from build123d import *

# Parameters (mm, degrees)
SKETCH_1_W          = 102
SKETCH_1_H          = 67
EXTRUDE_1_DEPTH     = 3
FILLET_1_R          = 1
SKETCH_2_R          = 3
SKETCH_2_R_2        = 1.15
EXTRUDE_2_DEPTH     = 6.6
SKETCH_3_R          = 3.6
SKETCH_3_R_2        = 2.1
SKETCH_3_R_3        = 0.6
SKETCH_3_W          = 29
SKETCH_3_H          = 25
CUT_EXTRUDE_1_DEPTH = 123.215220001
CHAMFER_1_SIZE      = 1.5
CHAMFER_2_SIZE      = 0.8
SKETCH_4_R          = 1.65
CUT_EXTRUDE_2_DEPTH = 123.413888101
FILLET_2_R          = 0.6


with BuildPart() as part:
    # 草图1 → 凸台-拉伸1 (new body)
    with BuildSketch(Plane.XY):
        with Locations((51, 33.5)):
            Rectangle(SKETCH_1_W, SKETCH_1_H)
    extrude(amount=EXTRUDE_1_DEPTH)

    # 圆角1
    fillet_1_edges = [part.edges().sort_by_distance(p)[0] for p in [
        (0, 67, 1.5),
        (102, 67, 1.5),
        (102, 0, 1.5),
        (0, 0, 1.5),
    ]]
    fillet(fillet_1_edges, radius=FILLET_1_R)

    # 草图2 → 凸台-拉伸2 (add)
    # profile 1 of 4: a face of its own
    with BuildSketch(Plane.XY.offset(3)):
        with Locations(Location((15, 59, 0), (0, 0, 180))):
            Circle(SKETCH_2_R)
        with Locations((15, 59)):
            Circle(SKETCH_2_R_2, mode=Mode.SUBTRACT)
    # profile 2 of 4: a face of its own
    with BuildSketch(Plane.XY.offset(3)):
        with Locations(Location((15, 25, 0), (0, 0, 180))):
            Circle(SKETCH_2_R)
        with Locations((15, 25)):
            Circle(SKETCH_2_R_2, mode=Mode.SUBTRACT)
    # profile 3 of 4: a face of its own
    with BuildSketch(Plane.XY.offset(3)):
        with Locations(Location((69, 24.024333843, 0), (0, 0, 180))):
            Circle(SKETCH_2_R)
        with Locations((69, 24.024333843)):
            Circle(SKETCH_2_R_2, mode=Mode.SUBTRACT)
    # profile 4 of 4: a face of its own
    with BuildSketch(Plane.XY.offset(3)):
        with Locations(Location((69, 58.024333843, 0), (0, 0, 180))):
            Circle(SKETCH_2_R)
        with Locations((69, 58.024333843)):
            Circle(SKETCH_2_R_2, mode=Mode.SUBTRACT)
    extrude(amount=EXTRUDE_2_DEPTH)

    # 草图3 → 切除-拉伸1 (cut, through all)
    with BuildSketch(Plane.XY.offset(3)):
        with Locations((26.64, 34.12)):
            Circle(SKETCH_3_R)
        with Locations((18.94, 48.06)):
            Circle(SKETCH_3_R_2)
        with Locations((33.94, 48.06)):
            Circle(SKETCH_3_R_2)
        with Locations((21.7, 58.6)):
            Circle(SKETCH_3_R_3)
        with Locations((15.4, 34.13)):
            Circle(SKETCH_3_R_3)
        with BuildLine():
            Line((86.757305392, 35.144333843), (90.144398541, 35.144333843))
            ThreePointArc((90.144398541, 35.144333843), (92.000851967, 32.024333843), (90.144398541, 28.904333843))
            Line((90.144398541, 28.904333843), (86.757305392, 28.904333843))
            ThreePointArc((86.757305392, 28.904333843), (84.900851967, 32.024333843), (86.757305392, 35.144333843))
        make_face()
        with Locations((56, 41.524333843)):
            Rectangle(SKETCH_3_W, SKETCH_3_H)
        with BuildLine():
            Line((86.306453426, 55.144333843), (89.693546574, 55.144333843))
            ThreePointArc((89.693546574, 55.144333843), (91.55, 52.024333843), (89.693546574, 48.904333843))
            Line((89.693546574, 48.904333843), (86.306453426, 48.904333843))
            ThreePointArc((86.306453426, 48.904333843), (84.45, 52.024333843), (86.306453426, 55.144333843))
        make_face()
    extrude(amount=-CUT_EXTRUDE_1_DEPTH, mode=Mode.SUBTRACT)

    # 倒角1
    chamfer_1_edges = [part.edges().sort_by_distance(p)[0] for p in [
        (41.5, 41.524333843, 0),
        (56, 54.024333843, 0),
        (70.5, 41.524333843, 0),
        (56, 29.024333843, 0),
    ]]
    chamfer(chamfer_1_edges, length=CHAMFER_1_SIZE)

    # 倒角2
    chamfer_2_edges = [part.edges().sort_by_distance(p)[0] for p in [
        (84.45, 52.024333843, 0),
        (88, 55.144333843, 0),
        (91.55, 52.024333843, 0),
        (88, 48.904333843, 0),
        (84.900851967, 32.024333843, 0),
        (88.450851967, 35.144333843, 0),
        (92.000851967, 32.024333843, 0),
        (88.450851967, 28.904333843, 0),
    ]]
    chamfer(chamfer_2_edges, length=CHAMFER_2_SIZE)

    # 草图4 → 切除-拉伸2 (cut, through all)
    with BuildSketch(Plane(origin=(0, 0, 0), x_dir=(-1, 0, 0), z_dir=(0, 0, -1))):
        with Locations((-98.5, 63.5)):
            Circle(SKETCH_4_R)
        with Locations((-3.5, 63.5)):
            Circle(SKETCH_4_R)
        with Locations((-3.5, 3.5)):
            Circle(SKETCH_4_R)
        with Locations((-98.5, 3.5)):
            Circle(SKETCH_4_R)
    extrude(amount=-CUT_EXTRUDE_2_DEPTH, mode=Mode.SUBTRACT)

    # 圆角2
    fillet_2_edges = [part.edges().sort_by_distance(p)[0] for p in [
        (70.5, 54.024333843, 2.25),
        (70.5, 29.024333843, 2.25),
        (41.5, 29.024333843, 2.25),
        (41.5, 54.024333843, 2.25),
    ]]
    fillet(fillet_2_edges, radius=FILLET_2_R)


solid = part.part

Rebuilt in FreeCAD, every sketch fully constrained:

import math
import FreeCAD as App
import Part
import Sketcher


def edges_at(feature, points):
    """Names of the edges that pass closest to the given points."""
    edges = feature.Shape.Edges
    near = lambda p: min(range(len(edges)), key=lambda i: edges[i].distToShape(Part.Vertex(*p))[0])
    return sorted({f"Edge{near(p) + 1}" for p in points})

doc = App.newDocument("Part")
params = doc.addObject("Spreadsheet::Sheet", "Params")
for row, (alias, value) in enumerate([
    ("sketch1_width", "102 mm"),
    ("sketch1_height", "67 mm"),
    ("pad1_length", "3 mm"),
    ("fillet_radius", "1 mm"),
    ("sketch2_diameter", "6 mm"),
    ("sketch2_diameter2", "2.3 mm"),
    ("pad2_length", "6.6 mm"),
    ("sketch3_diameter", "7.2 mm"),
    ("sketch3_diameter2", "4.2 mm"),
    ("sketch3_diameter3", "1.2 mm"),
    ("sketch3_width", "29 mm"),
    ("sketch3_height", "25 mm"),
    ("chamfer_size", "1.5 mm"),
    ("chamfer2_size", "0.8 mm"),
    ("sketch4_diameter", "3.3 mm"),
    ("fillet2_radius", "0.6 mm"),
], start=1):
    params.set(f"A{row}", alias)
    params.set(f"B{row}", "=" + value)
    params.setAlias(f"B{row}", alias)

body = doc.addObject("PartDesign::Body", "Body")

# Sketch on XY plane
sketch1 = body.newObject("Sketcher::SketchObject", "Sketch")
sketch1.AttachmentSupport = (doc.getObject("XY_Plane"), [""])
sketch1.MapMode = "FlatFace"
sketch1.addGeometry([
    Part.LineSegment(App.Vector(0, 67, 0), App.Vector(0, 0, 0)),
    Part.LineSegment(App.Vector(0, 0, 0), App.Vector(102, 0, 0)),
    Part.LineSegment(App.Vector(102, 0, 0), App.Vector(102, 67, 0)),
    Part.LineSegment(App.Vector(102, 67, 0), App.Vector(0, 67, 0)),
], False)
sketch1.addConstraint([
    Sketcher.Constraint("Coincident", 0, 2, 1, 1),
    Sketcher.Constraint("Coincident", 1, 2, 2, 1),
    Sketcher.Constraint("Coincident", 2, 2, 3, 1),
    Sketcher.Constraint("Coincident", 3, 2, 0, 1),
    Sketcher.Constraint("Vertical", 0),
    Sketcher.Constraint("Horizontal", 1),
    Sketcher.Constraint("Vertical", 2),
    Sketcher.Constraint("Horizontal", 3),
    Sketcher.Constraint("Coincident", 0, 2, -1, 1),
    Sketcher.Constraint("DistanceX", 1, 1, 1, 2, 102.0),
    Sketcher.Constraint("DistanceY", 0, 2, 0, 1, 67.0),
])
sketch1.setExpression("Constraints[9]", "Params.sketch1_width")
sketch1.setExpression("Constraints[10]", "Params.sketch1_height")
pad1 = body.newObject("PartDesign::Pad", "Pad")
pad1.Profile = sketch1
pad1.setExpression("Length", "Params.pad1_length")
doc.recompute()

fillet = body.newObject("PartDesign::Fillet", "Fillet")
fillet.Base = (pad1, edges_at(pad1, [
    (0, 67, 1.5),
    (102, 67, 1.5),
    (102, 0, 1.5),
    (0, 0, 1.5),
]))
fillet.setExpression("Radius", "Params.fillet_radius")

# Sketch on XY plane
sketch2 = body.newObject("Sketcher::SketchObject", "Sketch001")
sketch2.AttachmentSupport = (doc.getObject("XY_Plane"), [""])
sketch2.MapMode = "FlatFace"
sketch2.AttachmentOffset = App.Placement(App.Vector(0, 0, 3), App.Rotation())
sketch2.addGeometry([
    Part.Circle(App.Vector(15, 59, 0), App.Vector(0, 0, 1), 3),  # 0
    Part.Circle(App.Vector(15, 59, 0), App.Vector(0, 0, 1), 1.1),  # 1
    Part.Circle(App.Vector(15, 25, 0), App.Vector(0, 0, 1), 3),  # 2
    Part.Circle(App.Vector(15, 25, 0), App.Vector(0, 0, 1), 1.1),  # 3
    Part.Circle(App.Vector(69, 24, 0), App.Vector(0, 0, 1), 3),  # 4
    Part.Circle(App.Vector(69, 24, 0), App.Vector(0, 0, 1), 1.1),  # 5
    Part.Circle(App.Vector(69, 58, 0), App.Vector(0, 0, 1), 3),  # 6
    Part.Circle(App.Vector(69, 58, 0), App.Vector(0, 0, 1), 1.1),  # 7
], False)
sketch2.addConstraint([
    Sketcher.Constraint("Coincident", 1, 3, 0, 3),
    Sketcher.Constraint("Coincident", 3, 3, 2, 3),
    Sketcher.Constraint("Coincident", 5, 3, 4, 3),
    Sketcher.Constraint("Coincident", 7, 3, 6, 3),
    Sketcher.Constraint("Equal", 0, 2),
    Sketcher.Constraint("Equal", 1, 3),
    Sketcher.Constraint("Equal", 2, 4),
    Sketcher.Constraint("Equal", 3, 5),
    Sketcher.Constraint("Equal", 4, 6),
    Sketcher.Constraint("Equal", 5, 7),
    Sketcher.Constraint("Vertical", 1, 3, 2, 3),
    Sketcher.Constraint("Vertical", 5, 3, 6, 3),
    Sketcher.Constraint("Diameter", 0, 6.0),
    Sketcher.Constraint("Diameter", 1, 2.3),
    Sketcher.Constraint("DistanceX", -1, 1, 0, 3, 15.0),
    Sketcher.Constraint("DistanceY", -1, 1, 0, 3, 59.0),
    Sketcher.Constraint("DistanceY", -1, 1, 2, 3, 25.0),
    Sketcher.Constraint("DistanceX", -1, 1, 4, 3, 69.0),
    Sketcher.Constraint("DistanceY", 4, 3, 6, 3, 34.0),
    Sketcher.Constraint("DistanceY", -1, 1, 4, 3, 24.024334),
])
sketch2.setExpression("Constraints[12]", "Params.sketch2_diameter")
sketch2.setExpression("Constraints[13]", "Params.sketch2_diameter2")
pad2 = body.newObject("PartDesign::Pad", "Pad001")
pad2.Profile = sketch2
pad2.setExpression("Length", "Params.pad2_length")

# Sketch on XY plane
sketch3 = body.newObject("Sketcher::SketchObject", "Sketch002")
sketch3.AttachmentSupport = (doc.getObject("XY_Plane"), [""])
sketch3.MapMode = "FlatFace"
sketch3.AttachmentOffset = App.Placement(App.Vector(0, 0, 3), App.Rotation())
sketch3.addGeometry([
    Part.Circle(App.Vector(26.6, 34.1, 0), App.Vector(0, 0, 1), 3.6),  # 0
    Part.Circle(App.Vector(18.9, 48.1, 0), App.Vector(0, 0, 1), 2.1),  # 1
    Part.Circle(App.Vector(33.9, 48.1, 0), App.Vector(0, 0, 1), 2.1),  # 2
    Part.Circle(App.Vector(21.7, 58.6, 0), App.Vector(0, 0, 1), 0.6),  # 3
    Part.Circle(App.Vector(15.4, 34.1, 0), App.Vector(0, 0, 1), 0.6),  # 4
    Part.LineSegment(App.Vector(90.1, 35.1, 0), App.Vector(86.8, 35.1, 0)),  # 5
    Part.ArcOfCircle(Part.Circle(App.Vector(88.5, 32, 0), App.Vector(0, 0, 1), 3.5), math.radians(118), math.radians(242)),  # 6
    Part.LineSegment(App.Vector(86.8, 28.9, 0), App.Vector(90.1, 28.9, 0)),  # 7
    Part.ArcOfCircle(Part.Circle(App.Vector(88.5, 32, 0), App.Vector(0, 0, 1), 3.5), math.radians(-62), math.radians(62)),  # 8
    Part.LineSegment(App.Vector(41.5, 54, 0), App.Vector(41.5, 29, 0)),  # 9
    Part.LineSegment(App.Vector(41.5, 29, 0), App.Vector(70.5, 29, 0)),  # 10
    Part.LineSegment(App.Vector(70.5, 29, 0), App.Vector(70.5, 54, 0)),  # 11
    Part.LineSegment(App.Vector(70.5, 54, 0), App.Vector(41.5, 54, 0)),  # 12
    Part.LineSegment(App.Vector(89.7, 55.1, 0), App.Vector(86.3, 55.1, 0)),  # 13
    Part.ArcOfCircle(Part.Circle(App.Vector(88, 52, 0), App.Vector(0, 0, 1), 3.5), math.radians(118), math.radians(242)),  # 14
    Part.LineSegment(App.Vector(86.3, 48.9, 0), App.Vector(89.7, 48.9, 0)),  # 15
    Part.ArcOfCircle(Part.Circle(App.Vector(88, 52, 0), App.Vector(0, 0, 1), 3.5), math.radians(-62), math.radians(62)),  # 16
], False)
sketch3.addConstraint([
    Sketcher.Constraint("Coincident", 5, 2, 6, 1),
    Sketcher.Constraint("Coincident", 6, 2, 7, 1),
    Sketcher.Constraint("Coincident", 7, 2, 8, 1),
    Sketcher.Constraint("Coincident", 8, 2, 5, 1),
    Sketcher.Constraint("Coincident", 9, 2, 10, 1),
    Sketcher.Constraint("Coincident", 10, 2, 11, 1),
    Sketcher.Constraint("Coincident", 11, 2, 12, 1),
    Sketcher.Constraint("Coincident", 12, 2, 9, 1),
    Sketcher.Constraint("Coincident", 13, 2, 14, 1),
    Sketcher.Constraint("Coincident", 14, 2, 15, 1),
    Sketcher.Constraint("Coincident", 15, 2, 16, 1),
    Sketcher.Constraint("Coincident", 16, 2, 13, 1),
    Sketcher.Constraint("Horizontal", 5),
    Sketcher.Constraint("Horizontal", 7),
    Sketcher.Constraint("Vertical", 9),
    Sketcher.Constraint("Horizontal", 10),
    Sketcher.Constraint("Vertical", 11),
    Sketcher.Constraint("Horizontal", 12),
    Sketcher.Constraint("Horizontal", 13),
    Sketcher.Constraint("Horizontal", 15),
    Sketcher.Constraint("Coincident", 8, 3, 6, 3),
    Sketcher.Constraint("Coincident", 16, 3, 14, 3),
    Sketcher.Constraint("Equal", 1, 2),
    Sketcher.Constraint("Equal", 3, 4),
    Sketcher.Constraint("Equal", 6, 8),
    Sketcher.Constraint("Equal", 8, 14),
    Sketcher.Constraint("Equal", 14, 16),
    Sketcher.Constraint("Horizontal", 1, 3, 2, 3),
    Sketcher.Constraint("Vertical", 5, 2, 6, 2),
    Sketcher.Constraint("Vertical", 13, 2, 14, 2),
    Sketcher.Constraint("Equal", 7, 13),
    Sketcher.Constraint("Diameter", 0, 7.2),
    Sketcher.Constraint("Diameter", 1, 4.2),
    Sketcher.Constraint("Diameter", 3, 1.2),
    Sketcher.Constraint("DistanceX", 10, 1, 10, 2, 29.0),
    Sketcher.Constraint("DistanceY", 9, 2, 9, 1, 25.0),
    Sketcher.Constraint("Radius", 6, 3.55),
    Sketcher.Constraint("DistanceX", -1, 1, 14, 3, 88.0),
    Sketcher.Constraint("DistanceX", 1, 3, 2, 3, 15.0),
    Sketcher.Constraint("DistanceY", 6, 3, 14, 3, 20.0),
    Sketcher.Constraint("DistanceY", 10, 2, 6, 3, 3.0),
    Sketcher.Constraint("DistanceX", -1, 1, 3, 3, 21.7),
    Sketcher.Constraint("DistanceY", -1, 1, 3, 3, 58.6),
    Sketcher.Constraint("DistanceX", -1, 1, 4, 3, 15.4),
    Sketcher.Constraint("DistanceX", -1, 1, 9, 2, 41.5),
    Sketcher.Constraint("DistanceX", 1, 3, 0, 3, 7.7),
    Sketcher.Constraint("DistanceX", -1, 1, 0, 3, 26.64),
    Sketcher.Constraint("DistanceY", -1, 1, 0, 3, 34.12),
    Sketcher.Constraint("DistanceY", -1, 1, 1, 3, 48.06),
    Sketcher.Constraint("DistanceY", -1, 1, 4, 3, 34.13),
    Sketcher.Constraint("DistanceY", 6, 3, 5, 2, 3.12),
    Sketcher.Constraint("DistanceX", -1, 1, 7, 2, 90.144399),
    Sketcher.Constraint("DistanceY", -1, 1, 6, 3, 32.024334),
])
sketch3.setExpression("Constraints[31]", "Params.sketch3_diameter")
sketch3.setExpression("Constraints[32]", "Params.sketch3_diameter2")
sketch3.setExpression("Constraints[33]", "Params.sketch3_diameter3")
sketch3.setExpression("Constraints[34]", "Params.sketch3_width")
sketch3.setExpression("Constraints[35]", "Params.sketch3_height")
pocket1 = body.newObject("PartDesign::Pocket", "Pocket")
pocket1.Profile = sketch3
pocket1.Type = "ThroughAll"
doc.recompute()

chamfer = body.newObject("PartDesign::Chamfer", "Chamfer")
chamfer.Base = (pocket1, edges_at(pocket1, [
    (41.5, 41.524, 0),
    (56, 54.024, 0),
    (70.5, 41.524, 0),
    (56, 29.024, 0),
]))
chamfer.setExpression("Size", "Params.chamfer_size")
doc.recompute()

chamfer2 = body.newObject("PartDesign::Chamfer", "Chamfer001")
chamfer2.Base = (chamfer, edges_at(chamfer, [
    (84.45, 52.024, 0),
    (88, 55.144, 0),
    (91.55, 52.024, 0),
    (88, 48.904, 0),
    (84.901, 32.024, 0),
    (88.451, 35.144, 0),
    (92.001, 32.024, 0),
    (88.451, 28.904, 0),
]))
chamfer2.setExpression("Size", "Params.chamfer2_size")

# Sketch on XY plane
sketch4 = body.newObject("Sketcher::SketchObject", "Sketch003")
sketch4.AttachmentSupport = (doc.getObject("XY_Plane"), [""])
sketch4.MapMode = "FlatFace"
sketch4.addGeometry([
    Part.Circle(App.Vector(98.5, 63.5, 0), App.Vector(0, 0, 1), 1.6),
    Part.Circle(App.Vector(3.5, 63.5, 0), App.Vector(0, 0, 1), 1.6),
    Part.Circle(App.Vector(3.5, 3.5, 0), App.Vector(0, 0, 1), 1.6),
    Part.Circle(App.Vector(98.5, 3.5, 0), App.Vector(0, 0, 1), 1.6),
], False)
sketch4.addConstraint([
    Sketcher.Constraint("Equal", 0, 1),
    Sketcher.Constraint("Equal", 1, 2),
    Sketcher.Constraint("Equal", 2, 3),
    Sketcher.Constraint("Horizontal", 0, 3, 1, 3),
    Sketcher.Constraint("Horizontal", 2, 3, 3, 3),
    Sketcher.Constraint("Vertical", 1, 3, 2, 3),
    Sketcher.Constraint("Vertical", 0, 3, 3, 3),
    Sketcher.Constraint("Diameter", 0, 3.3),
    Sketcher.Constraint("DistanceX", 1, 3, 0, 3, 95.0),
    Sketcher.Constraint("DistanceY", 2, 3, 1, 3, 60.0),
    Sketcher.Constraint("DistanceX", -1, 1, 0, 3, 98.5),
    Sketcher.Constraint("DistanceY", -1, 1, 0, 3, 63.5),
])
sketch4.setExpression("Constraints[7]", "Params.sketch4_diameter")
pocket2 = body.newObject("PartDesign::Pocket", "Pocket001")
pocket2.Profile = sketch4
pocket2.Type = "ThroughAll"
pocket2.Reversed = True
doc.recompute()

fillet2 = body.newObject("PartDesign::Fillet", "Fillet001")
fillet2.Base = (pocket2, edges_at(pocket2, [
    (70.5, 54.024, 2.25),
    (70.5, 29.024, 2.25),
    (41.5, 29.024, 2.25),
    (41.5, 54.024, 2.25),
]))
fillet2.setExpression("Radius", "Params.fillet2_radius")

doc.recompute()
